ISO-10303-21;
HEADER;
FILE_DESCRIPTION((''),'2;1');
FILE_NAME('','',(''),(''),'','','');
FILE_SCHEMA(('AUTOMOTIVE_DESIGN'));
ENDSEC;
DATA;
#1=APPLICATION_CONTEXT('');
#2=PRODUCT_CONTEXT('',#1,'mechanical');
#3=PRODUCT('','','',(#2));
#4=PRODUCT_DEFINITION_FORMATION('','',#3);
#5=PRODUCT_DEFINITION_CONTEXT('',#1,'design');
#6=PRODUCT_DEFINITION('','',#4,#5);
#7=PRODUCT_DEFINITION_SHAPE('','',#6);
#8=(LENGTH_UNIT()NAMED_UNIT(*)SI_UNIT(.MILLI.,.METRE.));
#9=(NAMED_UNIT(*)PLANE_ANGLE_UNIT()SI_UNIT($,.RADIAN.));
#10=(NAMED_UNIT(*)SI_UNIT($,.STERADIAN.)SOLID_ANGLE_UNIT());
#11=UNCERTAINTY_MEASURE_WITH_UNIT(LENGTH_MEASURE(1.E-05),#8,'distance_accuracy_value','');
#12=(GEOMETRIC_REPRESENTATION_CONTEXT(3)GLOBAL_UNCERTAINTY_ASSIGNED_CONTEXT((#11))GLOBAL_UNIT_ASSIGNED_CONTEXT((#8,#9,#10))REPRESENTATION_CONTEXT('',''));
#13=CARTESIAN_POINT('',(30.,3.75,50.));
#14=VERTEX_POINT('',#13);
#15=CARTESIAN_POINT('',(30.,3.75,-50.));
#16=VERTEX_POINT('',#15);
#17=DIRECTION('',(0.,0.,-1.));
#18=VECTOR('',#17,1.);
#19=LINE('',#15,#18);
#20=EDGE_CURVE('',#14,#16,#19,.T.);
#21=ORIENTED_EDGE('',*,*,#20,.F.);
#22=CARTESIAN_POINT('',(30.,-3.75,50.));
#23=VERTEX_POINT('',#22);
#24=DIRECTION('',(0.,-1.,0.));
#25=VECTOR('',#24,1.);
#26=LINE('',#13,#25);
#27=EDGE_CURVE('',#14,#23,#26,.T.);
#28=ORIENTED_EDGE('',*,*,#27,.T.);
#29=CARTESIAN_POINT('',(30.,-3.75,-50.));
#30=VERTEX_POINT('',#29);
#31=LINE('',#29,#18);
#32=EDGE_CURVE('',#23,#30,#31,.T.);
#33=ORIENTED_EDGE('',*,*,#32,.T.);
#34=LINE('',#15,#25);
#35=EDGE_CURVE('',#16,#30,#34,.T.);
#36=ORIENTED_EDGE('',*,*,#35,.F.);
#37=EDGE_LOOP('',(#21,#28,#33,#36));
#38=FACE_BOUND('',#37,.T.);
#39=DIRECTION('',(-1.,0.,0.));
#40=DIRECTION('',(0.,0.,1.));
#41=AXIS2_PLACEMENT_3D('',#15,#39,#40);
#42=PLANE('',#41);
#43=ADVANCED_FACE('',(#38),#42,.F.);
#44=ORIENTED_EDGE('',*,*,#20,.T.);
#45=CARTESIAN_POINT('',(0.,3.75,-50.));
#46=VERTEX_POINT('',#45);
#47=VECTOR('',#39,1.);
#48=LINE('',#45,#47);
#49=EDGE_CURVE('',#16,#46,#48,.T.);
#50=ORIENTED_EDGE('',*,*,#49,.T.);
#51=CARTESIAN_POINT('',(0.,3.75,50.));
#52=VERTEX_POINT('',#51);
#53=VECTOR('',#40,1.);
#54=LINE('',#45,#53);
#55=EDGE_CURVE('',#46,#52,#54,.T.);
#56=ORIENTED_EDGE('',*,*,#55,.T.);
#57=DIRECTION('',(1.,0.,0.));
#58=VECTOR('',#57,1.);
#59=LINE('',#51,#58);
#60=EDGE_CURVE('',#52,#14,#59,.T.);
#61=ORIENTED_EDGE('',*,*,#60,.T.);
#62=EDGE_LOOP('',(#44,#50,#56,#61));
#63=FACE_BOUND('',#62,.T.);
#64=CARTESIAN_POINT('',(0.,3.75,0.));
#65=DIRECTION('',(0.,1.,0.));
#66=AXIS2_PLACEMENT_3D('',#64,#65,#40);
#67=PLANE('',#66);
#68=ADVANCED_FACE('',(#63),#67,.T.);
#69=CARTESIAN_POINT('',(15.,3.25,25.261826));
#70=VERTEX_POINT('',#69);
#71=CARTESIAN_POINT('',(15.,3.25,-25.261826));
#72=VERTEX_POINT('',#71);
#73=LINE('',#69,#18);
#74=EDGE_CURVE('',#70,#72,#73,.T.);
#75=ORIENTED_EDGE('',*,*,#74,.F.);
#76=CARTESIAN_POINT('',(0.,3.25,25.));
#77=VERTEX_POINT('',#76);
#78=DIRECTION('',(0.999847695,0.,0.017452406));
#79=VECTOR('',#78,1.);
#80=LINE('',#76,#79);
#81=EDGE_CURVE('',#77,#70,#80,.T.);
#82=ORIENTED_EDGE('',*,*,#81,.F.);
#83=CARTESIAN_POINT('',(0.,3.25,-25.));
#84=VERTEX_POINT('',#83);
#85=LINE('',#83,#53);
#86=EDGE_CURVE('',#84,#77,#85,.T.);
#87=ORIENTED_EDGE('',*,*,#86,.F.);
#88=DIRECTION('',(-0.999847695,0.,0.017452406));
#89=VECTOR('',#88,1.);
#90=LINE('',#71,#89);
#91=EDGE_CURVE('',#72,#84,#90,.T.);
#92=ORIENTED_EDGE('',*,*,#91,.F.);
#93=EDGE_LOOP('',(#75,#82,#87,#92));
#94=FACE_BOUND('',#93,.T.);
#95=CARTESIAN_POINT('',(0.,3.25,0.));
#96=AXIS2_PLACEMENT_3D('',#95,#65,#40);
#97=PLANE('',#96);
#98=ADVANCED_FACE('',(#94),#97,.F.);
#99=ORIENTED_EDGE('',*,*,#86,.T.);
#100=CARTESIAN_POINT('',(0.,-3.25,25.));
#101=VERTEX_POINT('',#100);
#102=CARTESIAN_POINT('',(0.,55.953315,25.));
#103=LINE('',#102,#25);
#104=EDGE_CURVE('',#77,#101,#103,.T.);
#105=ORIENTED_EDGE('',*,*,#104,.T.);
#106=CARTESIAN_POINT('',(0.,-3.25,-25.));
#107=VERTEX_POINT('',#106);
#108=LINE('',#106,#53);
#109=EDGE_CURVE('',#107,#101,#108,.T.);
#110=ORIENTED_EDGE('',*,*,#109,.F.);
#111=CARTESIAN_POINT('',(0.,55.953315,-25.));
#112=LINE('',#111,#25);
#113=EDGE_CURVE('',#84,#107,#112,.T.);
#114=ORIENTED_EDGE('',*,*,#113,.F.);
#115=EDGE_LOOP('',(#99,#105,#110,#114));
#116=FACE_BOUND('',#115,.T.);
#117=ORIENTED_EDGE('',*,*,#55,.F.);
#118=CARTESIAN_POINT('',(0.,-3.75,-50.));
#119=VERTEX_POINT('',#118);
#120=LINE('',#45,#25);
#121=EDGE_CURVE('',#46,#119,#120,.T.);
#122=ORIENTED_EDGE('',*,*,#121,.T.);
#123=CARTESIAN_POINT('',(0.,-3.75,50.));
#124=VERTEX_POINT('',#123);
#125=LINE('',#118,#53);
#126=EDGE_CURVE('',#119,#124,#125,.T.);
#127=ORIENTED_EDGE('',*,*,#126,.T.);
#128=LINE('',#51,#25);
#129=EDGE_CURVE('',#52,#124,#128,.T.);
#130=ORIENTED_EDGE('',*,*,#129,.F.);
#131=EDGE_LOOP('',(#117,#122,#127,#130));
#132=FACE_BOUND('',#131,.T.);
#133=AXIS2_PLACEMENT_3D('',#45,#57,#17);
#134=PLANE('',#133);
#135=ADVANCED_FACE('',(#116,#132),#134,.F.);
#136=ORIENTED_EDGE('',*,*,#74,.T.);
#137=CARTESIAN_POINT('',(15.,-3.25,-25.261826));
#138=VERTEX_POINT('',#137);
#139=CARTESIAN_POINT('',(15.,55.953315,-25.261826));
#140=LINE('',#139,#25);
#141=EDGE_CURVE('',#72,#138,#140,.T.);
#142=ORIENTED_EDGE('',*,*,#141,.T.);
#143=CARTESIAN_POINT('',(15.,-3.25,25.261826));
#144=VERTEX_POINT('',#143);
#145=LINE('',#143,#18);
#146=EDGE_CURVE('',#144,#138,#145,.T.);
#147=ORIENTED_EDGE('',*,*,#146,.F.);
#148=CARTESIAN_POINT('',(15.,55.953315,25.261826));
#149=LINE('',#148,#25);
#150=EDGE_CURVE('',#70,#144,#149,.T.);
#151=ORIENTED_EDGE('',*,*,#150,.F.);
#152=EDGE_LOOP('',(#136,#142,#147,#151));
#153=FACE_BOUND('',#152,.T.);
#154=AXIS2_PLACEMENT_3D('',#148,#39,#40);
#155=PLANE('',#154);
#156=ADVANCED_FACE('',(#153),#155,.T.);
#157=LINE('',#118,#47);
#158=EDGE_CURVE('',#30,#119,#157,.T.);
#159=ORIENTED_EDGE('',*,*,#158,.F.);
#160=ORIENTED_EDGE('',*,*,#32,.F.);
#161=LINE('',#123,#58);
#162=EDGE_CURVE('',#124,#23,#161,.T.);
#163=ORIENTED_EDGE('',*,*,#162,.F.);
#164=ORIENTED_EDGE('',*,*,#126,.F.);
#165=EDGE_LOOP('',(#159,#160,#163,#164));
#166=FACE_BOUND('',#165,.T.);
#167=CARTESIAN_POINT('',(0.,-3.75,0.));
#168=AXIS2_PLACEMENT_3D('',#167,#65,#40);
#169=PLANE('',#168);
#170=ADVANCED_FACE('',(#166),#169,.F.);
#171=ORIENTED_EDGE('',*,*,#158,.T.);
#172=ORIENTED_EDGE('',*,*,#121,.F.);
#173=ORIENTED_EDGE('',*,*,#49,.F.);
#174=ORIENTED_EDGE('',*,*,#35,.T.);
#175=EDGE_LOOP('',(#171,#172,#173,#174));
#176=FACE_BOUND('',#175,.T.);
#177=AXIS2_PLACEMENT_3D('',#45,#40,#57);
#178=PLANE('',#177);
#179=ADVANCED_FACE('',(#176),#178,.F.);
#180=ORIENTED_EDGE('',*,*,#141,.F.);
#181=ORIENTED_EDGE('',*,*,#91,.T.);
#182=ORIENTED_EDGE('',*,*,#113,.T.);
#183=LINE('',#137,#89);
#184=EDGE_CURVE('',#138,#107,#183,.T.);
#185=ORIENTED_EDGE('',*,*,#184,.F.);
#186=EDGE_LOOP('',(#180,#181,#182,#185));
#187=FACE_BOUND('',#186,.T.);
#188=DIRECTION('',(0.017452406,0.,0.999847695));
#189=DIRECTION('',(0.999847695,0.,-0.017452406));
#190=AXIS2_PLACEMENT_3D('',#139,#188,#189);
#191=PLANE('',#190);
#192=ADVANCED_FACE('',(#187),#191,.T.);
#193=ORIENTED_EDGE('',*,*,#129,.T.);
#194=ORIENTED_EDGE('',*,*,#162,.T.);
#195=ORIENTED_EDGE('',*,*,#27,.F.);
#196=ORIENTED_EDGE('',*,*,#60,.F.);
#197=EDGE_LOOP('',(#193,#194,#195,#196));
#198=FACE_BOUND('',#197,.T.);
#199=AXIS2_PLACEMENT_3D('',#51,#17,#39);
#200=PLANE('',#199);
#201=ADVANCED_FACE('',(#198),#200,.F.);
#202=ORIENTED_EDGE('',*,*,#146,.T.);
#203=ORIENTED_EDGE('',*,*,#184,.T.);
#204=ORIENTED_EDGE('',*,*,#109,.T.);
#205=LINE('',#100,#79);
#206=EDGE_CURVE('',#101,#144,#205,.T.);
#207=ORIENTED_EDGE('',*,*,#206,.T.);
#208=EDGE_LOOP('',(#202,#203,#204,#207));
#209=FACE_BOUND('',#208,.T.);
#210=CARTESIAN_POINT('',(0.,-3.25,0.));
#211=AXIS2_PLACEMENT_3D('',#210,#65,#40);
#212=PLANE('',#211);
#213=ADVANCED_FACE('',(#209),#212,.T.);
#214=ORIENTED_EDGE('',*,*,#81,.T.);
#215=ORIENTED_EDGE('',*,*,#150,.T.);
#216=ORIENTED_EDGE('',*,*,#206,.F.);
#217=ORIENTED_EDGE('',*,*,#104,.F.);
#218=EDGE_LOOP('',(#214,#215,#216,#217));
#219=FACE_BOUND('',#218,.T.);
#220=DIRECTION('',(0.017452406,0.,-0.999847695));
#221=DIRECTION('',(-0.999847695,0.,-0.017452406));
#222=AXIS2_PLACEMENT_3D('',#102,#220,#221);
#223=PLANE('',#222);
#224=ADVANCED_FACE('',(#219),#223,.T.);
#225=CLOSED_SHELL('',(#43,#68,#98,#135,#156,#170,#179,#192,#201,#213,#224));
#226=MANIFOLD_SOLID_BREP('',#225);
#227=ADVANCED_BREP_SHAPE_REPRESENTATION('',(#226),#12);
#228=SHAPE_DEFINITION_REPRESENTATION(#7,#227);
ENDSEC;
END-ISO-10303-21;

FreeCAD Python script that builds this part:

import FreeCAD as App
import Part
import Sketcher
from FreeCAD import Vector
Q = App.Units.Quantity

doc = App.newDocument("Part")
params = doc.addObject("Spreadsheet::Sheet", "Params")
for row, (alias, value) in enumerate([
    ("sketch1_width", "30 mm"),
    ("sketch1_height", "100 mm"),
    ("pad1_length", "7.5 mm"),
    ("sketch2_height", "50 mm"),
    ("pocket1_length", "6.5 mm"),
], start=1):
    params.set(f"A{row}", alias)
    params.set(f"B{row}", "=" + value)
    params.setAlias(f"B{row}", alias)

body = doc.addObject("PartDesign::Body", "Body")

sketch1 = body.newObject("Sketcher::SketchObject", "Sketch")
sketch1.AttachmentSupport = (doc.getObject("XZ_Plane"), [""])
sketch1.MapMode = "FlatFace"
sketch1.addGeometry(Part.LineSegment(Vector(0, -50, 0), Vector(0, 50, 0)), False)
sketch1.addGeometry(Part.LineSegment(Vector(0, 50, 0), Vector(30, 50, 0)), False)
sketch1.addGeometry(Part.LineSegment(Vector(30, 50, 0), Vector(30, -50, 0)), False)
sketch1.addGeometry(Part.LineSegment(Vector(30, -50, 0), Vector(0, -50, 0)), False)
sketch1.addConstraint(Sketcher.Constraint("Coincident", 0, 2, 1, 1))
sketch1.addConstraint(Sketcher.Constraint("Coincident", 1, 2, 2, 1))
sketch1.addConstraint(Sketcher.Constraint("Coincident", 2, 2, 3, 1))
sketch1.addConstraint(Sketcher.Constraint("Coincident", 3, 2, 0, 1))
sketch1.addConstraint(Sketcher.Constraint("Vertical", 0))
sketch1.addConstraint(Sketcher.Constraint("Horizontal", 1))
sketch1.addConstraint(Sketcher.Constraint("Vertical", 2))
sketch1.addConstraint(Sketcher.Constraint("Horizontal", 3))
sketch1.addConstraint(Sketcher.Constraint("Symmetric", 0, 2, 3, 2, -1, 1))
sketch1.addConstraint(Sketcher.Constraint("DistanceX", 1, 1, 1, 2, Q("30 mm")))
sketch1.addConstraint(Sketcher.Constraint("DistanceY", 0, 1, 0, 2, Q("100 mm")))
sketch1.setExpression("Constraints[9]", "Params.sketch1_width")
sketch1.setExpression("Constraints[10]", "Params.sketch1_height")
pad1 = body.newObject("PartDesign::Pad", "Pad")
pad1.Profile = sketch1
pad1.setExpression("Length", "Params.pad1_length")
pad1.Midplane = True

sketch2 = body.newObject("Sketcher::SketchObject", "Sketch001")
sketch2.AttachmentSupport = (doc.getObject("XZ_Plane"), [""])
sketch2.MapMode = "FlatFace"
sketch2.AttachmentOffset = App.Placement(Vector(0, 0, 3.25), App.Rotation())
sketch2.addGeometry(Part.LineSegment(Vector(0, -25, 0), Vector(0, 25, 0)), False)
sketch2.addGeometry(Part.LineSegment(Vector(0, 25, 0), Vector(15, 25.261826, 0)), False)
sketch2.addGeometry(Part.LineSegment(Vector(15, 25.261826, 0), Vector(15, -25.261826, 0)), False)
sketch2.addGeometry(Part.LineSegment(Vector(15, -25.261826, 0), Vector(0, -25, 0)), False)
sketch2.addConstraint(Sketcher.Constraint("Coincident", 0, 2, 1, 1))
sketch2.addConstraint(Sketcher.Constraint("Coincident", 1, 2, 2, 1))
sketch2.addConstraint(Sketcher.Constraint("Coincident", 2, 2, 3, 1))
sketch2.addConstraint(Sketcher.Constraint("Coincident", 3, 2, 0, 1))
sketch2.addConstraint(Sketcher.Constraint("Vertical", 0))
sketch2.addConstraint(Sketcher.Constraint("Vertical", 2))
sketch2.addConstraint(Sketcher.Constraint("Symmetric", 0, 2, 3, 2, -1, 1))
sketch2.addConstraint(Sketcher.Constraint("Equal", 1, 3))
sketch2.addConstraint(Sketcher.Constraint("DistanceY", 0, 1, 0, 2, Q("50 mm")))
sketch2.addConstraint(Sketcher.Constraint("Angle", 1, Q("1 deg")))
sketch2.addConstraint(Sketcher.Constraint("DistanceX", -1, 1, 1, 2, Q("15 mm")))
sketch2.setExpression("Constraints[8]", "Params.sketch2_height")
pocket1 = body.newObject("PartDesign::Pocket", "Pocket")
pocket1.Profile = sketch2
pocket1.setExpression("Length", "Params.pocket1_length")

doc.recompute()
